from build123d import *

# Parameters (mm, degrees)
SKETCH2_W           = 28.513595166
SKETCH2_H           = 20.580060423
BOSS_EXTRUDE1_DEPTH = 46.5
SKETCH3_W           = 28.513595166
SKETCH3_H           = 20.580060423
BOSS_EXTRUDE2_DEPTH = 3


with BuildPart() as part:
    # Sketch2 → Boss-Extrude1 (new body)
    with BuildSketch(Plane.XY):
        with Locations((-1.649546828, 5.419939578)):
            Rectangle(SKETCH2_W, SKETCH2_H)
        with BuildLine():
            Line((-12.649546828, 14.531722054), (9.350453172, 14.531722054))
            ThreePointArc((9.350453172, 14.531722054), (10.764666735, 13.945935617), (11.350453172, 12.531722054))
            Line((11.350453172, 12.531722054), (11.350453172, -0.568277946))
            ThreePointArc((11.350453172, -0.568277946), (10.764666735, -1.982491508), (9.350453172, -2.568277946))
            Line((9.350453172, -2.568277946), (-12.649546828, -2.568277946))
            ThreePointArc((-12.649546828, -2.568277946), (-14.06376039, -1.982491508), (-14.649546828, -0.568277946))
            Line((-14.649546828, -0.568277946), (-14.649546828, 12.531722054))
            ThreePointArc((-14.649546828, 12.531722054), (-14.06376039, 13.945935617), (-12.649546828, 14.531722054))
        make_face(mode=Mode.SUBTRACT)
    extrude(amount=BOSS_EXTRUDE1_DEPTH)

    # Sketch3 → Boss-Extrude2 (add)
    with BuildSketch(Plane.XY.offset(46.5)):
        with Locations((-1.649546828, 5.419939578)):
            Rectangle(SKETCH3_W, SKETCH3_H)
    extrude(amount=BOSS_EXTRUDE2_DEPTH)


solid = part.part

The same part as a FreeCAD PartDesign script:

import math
import FreeCAD as App
import Part
import Sketcher

V = App.Vector
Q = App.Units.Quantity


def add_polygon(sketch, points):
    """Adds a closed chain of lines whose ends are joined by coincident constraints."""
    first, n = sketch.GeometryCount, len(points)
    for a, b in zip(points, points[1:] + points[:1]):
        sketch.addGeometry(Part.LineSegment(App.Vector(*a, 0), App.Vector(*b, 0)), False)
    for i in range(n):
        sketch.addConstraint(Sketcher.Constraint("Coincident", first + i, 2, first + (i + 1) % n, 1))

doc = App.newDocument("Part")
body = doc.addObject("PartDesign::Body", "Body")

sketch1 = body.newObject("Sketcher::SketchObject", "Sketch")
sketch1.AttachmentSupport = (doc.getObject("XY_Plane"), [""])
sketch1.MapMode = "FlatFace"
add_polygon(sketch1, [(-15.9, 15.7), (-15.9, -4.9), (12.6, -4.9), (12.6, 15.7)])
sketch1.addGeometry(Part.ArcOfCircle(Part.Circle(V(-12.6, 12.5, 0), V(0, 0, 1), 2), math.radians(90), math.radians(180)), False)
sketch1.addGeometry(Part.LineSegment(V(-12.6, 14.5, 0), V(9.4, 14.5, 0)), False)
sketch1.addGeometry(Part.ArcOfCircle(Part.Circle(V(9.4, 12.5, 0), V(0, 0, 1), 2), math.radians(0), math.radians(90)), False)
sketch1.addGeometry(Part.LineSegment(V(11.4, 12.5, 0), V(11.4, -0.6, 0)), False)
sketch1.addGeometry(Part.ArcOfCircle(Part.Circle(V(9.4, -0.6, 0), V(0, 0, 1), 2), math.radians(-90), math.radians(0)), False)
sketch1.addGeometry(Part.LineSegment(V(9.4, -2.6, 0), V(-12.6, -2.6, 0)), False)
sketch1.addGeometry(Part.ArcOfCircle(Part.Circle(V(-12.6, -0.6, 0), V(0, 0, 1), 2), math.radians(-180), math.radians(-90)), False)
sketch1.addGeometry(Part.LineSegment(V(-14.6, -0.6, 0), V(-14.6, 12.5, 0)), False)
sketch1.addConstraint([
    Sketcher.Constraint("Tangent", 4, 1, 5, 1),
    Sketcher.Constraint("Tangent", 5, 2, 6, 2),
    Sketcher.Constraint("Tangent", 6, 1, 7, 1),
    Sketcher.Constraint("Tangent", 7, 2, 8, 2),
    Sketcher.Constraint("Tangent", 8, 1, 9, 1),
    Sketcher.Constraint("Tangent", 9, 2, 10, 2),
    Sketcher.Constraint("Tangent", 10, 1, 11, 1),
    Sketcher.Constraint("Tangent", 11, 2, 4, 2),
    Sketcher.Constraint("Vertical", 0),
    Sketcher.Constraint("Horizontal", 1),
    Sketcher.Constraint("Vertical", 2),
    Sketcher.Constraint("Horizontal", 3),
    Sketcher.Constraint("Horizontal", 5),
    Sketcher.Constraint("Vertical", 7),
    Sketcher.Constraint("Horizontal", 9),
    Sketcher.Constraint("Vertical", 11),
    Sketcher.Constraint("Equal", 4, 6),
    Sketcher.Constraint("Equal", 6, 8),
    Sketcher.Constraint("Equal", 8, 10),
    Sketcher.Constraint("Radius", 4, Q("2 mm")),
    Sketcher.Constraint("DistanceX", 5, 1, 5, 2, Q("22 mm")),
    Sketcher.Constraint("DistanceY", 7, 2, 7, 1, Q("13.1 mm")),
    Sketcher.Constraint("DistanceY", 0, 2, 0, 1, Q("20.58006 mm")),
    Sketcher.Constraint("DistanceX", 1, 1, 1, 2, Q("28.513595 mm")),
    Sketcher.Constraint("DistanceY", 0, 2, -1, 1, Q("4.870091 mm")),
    Sketcher.Constraint("DistanceX", -1, 1, 1, 2, Q("12.607251 mm")),
    Sketcher.Constraint("DistanceX", 4, 3, -1, 1, Q("12.649547 mm")),
    Sketcher.Constraint("DistanceY", -1, 1, 4, 3, Q("12.531722 mm")),
])
pad1 = body.newObject("PartDesign::Pad", "Pad")
pad1.Profile = sketch1
pad1.Length = 46.5

sketch2 = body.newObject("Sketcher::SketchObject", "Sketch001")
sketch2.AttachmentSupport = (doc.getObject("XY_Plane"), [""])
sketch2.MapMode = "FlatFace"
sketch2.AttachmentOffset = App.Placement(V(0, 0, 46.5), App.Rotation())
add_polygon(sketch2, [(-16, 16), (-16, -5), (13, -5), (13, 16)])
sketch2.addConstraint([
    Sketcher.Constraint("Vertical", 0),
    Sketcher.Constraint("Horizontal", 1),
    Sketcher.Constraint("Vertical", 2),
    Sketcher.Constraint("Horizontal", 3),
    Sketcher.Constraint("DistanceY", 0, 2, 0, 1, Q("20.58006 mm")),
    Sketcher.Constraint("DistanceX", 1, 1, 1, 2, Q("28.513595 mm")),
    Sketcher.Constraint("DistanceY", 0, 2, -1, 1, Q("4.870091 mm")),
    Sketcher.Constraint("DistanceX", -1, 1, 1, 2, Q("12.607251 mm")),
])
pad2 = body.newObject("PartDesign::Pad", "Pad001")
pad2.Profile = sketch2
pad2.Length = 3

doc.recompute()
